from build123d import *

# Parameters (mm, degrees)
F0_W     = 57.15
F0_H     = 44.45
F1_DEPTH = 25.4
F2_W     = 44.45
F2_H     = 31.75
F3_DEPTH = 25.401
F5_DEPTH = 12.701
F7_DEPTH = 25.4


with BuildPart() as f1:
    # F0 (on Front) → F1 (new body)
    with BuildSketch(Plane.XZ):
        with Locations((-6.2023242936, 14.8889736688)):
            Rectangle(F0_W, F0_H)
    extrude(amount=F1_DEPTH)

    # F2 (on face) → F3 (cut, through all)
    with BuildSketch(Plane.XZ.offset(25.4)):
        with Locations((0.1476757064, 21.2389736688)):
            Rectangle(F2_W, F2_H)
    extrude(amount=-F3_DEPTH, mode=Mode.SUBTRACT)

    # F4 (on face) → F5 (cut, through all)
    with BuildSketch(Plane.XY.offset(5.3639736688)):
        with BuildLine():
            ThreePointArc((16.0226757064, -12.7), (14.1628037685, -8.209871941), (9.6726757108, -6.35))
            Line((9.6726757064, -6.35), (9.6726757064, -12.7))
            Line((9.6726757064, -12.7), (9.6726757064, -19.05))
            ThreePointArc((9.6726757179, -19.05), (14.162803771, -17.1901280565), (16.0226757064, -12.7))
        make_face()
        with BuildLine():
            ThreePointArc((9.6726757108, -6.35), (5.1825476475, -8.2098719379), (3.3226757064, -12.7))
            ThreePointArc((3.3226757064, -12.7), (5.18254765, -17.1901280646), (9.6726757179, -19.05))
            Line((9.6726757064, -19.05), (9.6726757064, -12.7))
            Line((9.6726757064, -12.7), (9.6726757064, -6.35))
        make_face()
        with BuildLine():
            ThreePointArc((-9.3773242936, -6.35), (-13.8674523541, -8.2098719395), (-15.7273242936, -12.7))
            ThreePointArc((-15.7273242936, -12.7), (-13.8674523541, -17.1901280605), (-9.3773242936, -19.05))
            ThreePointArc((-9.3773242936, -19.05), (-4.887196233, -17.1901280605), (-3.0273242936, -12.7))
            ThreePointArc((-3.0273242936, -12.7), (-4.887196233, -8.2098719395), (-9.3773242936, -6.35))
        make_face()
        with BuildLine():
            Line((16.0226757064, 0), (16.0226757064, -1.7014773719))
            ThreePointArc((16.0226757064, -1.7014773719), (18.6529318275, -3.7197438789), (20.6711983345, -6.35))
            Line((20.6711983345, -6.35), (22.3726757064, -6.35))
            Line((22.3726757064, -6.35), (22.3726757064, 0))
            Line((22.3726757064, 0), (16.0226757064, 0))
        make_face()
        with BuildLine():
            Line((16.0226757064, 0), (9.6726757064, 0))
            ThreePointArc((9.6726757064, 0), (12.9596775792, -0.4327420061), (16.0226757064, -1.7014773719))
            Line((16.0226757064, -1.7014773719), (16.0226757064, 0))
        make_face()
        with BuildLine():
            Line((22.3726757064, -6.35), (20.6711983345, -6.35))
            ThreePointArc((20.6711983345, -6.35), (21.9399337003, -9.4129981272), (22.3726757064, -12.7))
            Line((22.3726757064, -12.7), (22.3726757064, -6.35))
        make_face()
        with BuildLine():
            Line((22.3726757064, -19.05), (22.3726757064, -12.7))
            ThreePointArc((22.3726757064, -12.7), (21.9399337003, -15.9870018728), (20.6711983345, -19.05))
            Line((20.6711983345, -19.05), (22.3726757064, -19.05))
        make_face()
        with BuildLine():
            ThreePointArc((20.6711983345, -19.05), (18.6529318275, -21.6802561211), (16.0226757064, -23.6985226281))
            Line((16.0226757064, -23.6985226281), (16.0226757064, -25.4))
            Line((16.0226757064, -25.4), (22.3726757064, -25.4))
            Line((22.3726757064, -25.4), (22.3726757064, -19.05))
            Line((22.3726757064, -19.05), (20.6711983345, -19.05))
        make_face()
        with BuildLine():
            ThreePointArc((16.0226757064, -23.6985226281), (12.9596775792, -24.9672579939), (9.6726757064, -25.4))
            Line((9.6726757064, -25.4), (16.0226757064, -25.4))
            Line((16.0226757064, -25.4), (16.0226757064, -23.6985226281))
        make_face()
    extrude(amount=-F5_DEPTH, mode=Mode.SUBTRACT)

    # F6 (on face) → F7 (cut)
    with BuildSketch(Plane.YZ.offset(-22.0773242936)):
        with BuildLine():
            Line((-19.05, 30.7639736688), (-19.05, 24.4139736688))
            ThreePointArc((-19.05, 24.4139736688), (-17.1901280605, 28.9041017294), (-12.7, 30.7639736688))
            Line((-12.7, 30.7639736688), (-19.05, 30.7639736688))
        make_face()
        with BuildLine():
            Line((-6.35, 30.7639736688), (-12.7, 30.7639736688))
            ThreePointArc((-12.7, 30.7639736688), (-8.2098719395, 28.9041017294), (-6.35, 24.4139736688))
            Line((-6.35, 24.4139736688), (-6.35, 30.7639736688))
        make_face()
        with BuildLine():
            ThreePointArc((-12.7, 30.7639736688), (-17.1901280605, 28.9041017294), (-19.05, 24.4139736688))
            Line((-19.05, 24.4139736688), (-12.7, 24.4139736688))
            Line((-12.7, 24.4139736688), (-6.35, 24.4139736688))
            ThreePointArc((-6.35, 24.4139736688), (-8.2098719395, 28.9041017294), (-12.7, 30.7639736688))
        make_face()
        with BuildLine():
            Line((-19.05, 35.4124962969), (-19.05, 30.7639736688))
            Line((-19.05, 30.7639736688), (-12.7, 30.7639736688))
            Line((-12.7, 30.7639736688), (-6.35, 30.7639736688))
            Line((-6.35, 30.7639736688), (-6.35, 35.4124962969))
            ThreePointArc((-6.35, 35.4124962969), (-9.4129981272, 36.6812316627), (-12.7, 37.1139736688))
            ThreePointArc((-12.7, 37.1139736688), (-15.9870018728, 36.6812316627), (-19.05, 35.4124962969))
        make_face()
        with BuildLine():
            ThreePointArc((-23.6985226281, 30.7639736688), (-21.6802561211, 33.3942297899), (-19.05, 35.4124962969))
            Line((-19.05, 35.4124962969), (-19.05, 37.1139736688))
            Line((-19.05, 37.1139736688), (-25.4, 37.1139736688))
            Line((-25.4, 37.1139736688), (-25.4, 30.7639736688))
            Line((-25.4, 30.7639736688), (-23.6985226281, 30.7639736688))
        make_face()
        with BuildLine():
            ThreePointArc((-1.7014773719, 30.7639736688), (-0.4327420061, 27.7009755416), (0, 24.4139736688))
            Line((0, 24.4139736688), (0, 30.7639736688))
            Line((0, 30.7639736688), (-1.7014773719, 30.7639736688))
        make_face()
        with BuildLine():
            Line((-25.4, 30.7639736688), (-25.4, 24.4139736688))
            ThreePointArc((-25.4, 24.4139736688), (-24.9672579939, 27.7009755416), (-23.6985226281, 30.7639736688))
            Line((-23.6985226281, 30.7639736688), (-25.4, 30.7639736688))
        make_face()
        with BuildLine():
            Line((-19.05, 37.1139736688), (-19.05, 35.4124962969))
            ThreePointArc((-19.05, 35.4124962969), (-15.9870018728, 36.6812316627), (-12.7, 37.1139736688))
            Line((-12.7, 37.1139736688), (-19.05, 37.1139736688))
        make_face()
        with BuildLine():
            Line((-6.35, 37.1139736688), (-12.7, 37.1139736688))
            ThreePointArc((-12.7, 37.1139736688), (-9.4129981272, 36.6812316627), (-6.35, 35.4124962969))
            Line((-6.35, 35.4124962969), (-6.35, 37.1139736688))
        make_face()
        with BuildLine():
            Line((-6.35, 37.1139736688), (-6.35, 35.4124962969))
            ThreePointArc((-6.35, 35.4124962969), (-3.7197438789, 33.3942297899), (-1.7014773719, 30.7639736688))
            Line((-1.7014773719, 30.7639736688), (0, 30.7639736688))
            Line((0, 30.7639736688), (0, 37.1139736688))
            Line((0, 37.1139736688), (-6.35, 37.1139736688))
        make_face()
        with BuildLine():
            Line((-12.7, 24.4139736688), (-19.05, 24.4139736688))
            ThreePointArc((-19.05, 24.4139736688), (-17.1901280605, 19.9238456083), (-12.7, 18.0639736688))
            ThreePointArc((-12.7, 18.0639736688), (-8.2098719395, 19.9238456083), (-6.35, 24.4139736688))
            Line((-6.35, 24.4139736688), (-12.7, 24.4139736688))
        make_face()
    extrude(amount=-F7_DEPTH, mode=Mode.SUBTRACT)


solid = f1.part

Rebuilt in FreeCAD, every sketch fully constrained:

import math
import FreeCAD as App
import Part
import Sketcher
from FreeCAD import Vector
Q = App.Units.Quantity

doc = App.newDocument("Part")
body = doc.addObject("PartDesign::Body", "Body")

# Sketch on XZ plane
sketch1 = body.newObject("Sketcher::SketchObject", "Sketch")
sketch1.AttachmentSupport = (doc.getObject("XZ_Plane"), [""])
sketch1.MapMode = "FlatFace"
sketch1.addGeometry([
    Part.LineSegment(Vector(-35, 37, 0), Vector(-35, -7, 0)),
    Part.LineSegment(Vector(-35, -7, 0), Vector(22, -7, 0)),
    Part.LineSegment(Vector(22, -7, 0), Vector(22, 37, 0)),
    Part.LineSegment(Vector(22, 37, 0), Vector(-35, 37, 0)),
], False)
sketch1.addConstraint([
    Sketcher.Constraint("Coincident", 0, 2, 1, 1),
    Sketcher.Constraint("Coincident", 1, 2, 2, 1),
    Sketcher.Constraint("Coincident", 2, 2, 3, 1),
    Sketcher.Constraint("Coincident", 3, 2, 0, 1),
    Sketcher.Constraint("Vertical", 0),
    Sketcher.Constraint("Horizontal", 1),
    Sketcher.Constraint("Vertical", 2),
    Sketcher.Constraint("Horizontal", 3),
    Sketcher.Constraint("DistanceX", 1, 1, 1, 2, Q("2.25 in")),
    Sketcher.Constraint("DistanceY", 0, 2, 0, 1, Q("1.75 in")),
    Sketcher.Constraint("DistanceX", 0, 2, -1, 1, Q("34.777324 mm")),
    Sketcher.Constraint("DistanceY", 0, 2, -1, 1, Q("7.336026 mm")),
])
pad1 = body.newObject("PartDesign::Pad", "Pad")
pad1.Profile = sketch1
pad1.Length = Q("1 in")

# Sketch on XZ plane
sketch2 = body.newObject("Sketcher::SketchObject", "Sketch001")
sketch2.AttachmentSupport = (doc.getObject("XZ_Plane"), [""])
sketch2.MapMode = "FlatFace"
sketch2.AttachmentOffset = App.Placement(Vector(0, 0, 1 * 25.4), App.Rotation())
sketch2.addGeometry([
    Part.LineSegment(Vector(-22, 37, 0), Vector(-22, 5, 0)),
    Part.LineSegment(Vector(-22, 5, 0), Vector(22, 5, 0)),
    Part.LineSegment(Vector(22, 5, 0), Vector(22, 37, 0)),
    Part.LineSegment(Vector(22, 37, 0), Vector(-22, 37, 0)),
], False)
sketch2.addConstraint([
    Sketcher.Constraint("Coincident", 0, 2, 1, 1),
    Sketcher.Constraint("Coincident", 1, 2, 2, 1),
    Sketcher.Constraint("Coincident", 2, 2, 3, 1),
    Sketcher.Constraint("Coincident", 3, 2, 0, 1),
    Sketcher.Constraint("Vertical", 0),
    Sketcher.Constraint("Horizontal", 1),
    Sketcher.Constraint("Vertical", 2),
    Sketcher.Constraint("Horizontal", 3),
    Sketcher.Constraint("DistanceX", 1, 1, 1, 2, Q("1.75 in")),
    Sketcher.Constraint("DistanceY", 0, 2, 0, 1, Q("1.25 in")),
    Sketcher.Constraint("DistanceX", 0, 2, -1, 1, Q("22.077324 mm")),
    Sketcher.Constraint("DistanceY", -1, 1, 0, 2, Q("5.363974 mm")),
])
pocket1 = body.newObject("PartDesign::Pocket", "Pocket")
pocket1.Profile = sketch2
pocket1.Type = "ThroughAll"

# Sketch on XY plane
sketch3 = body.newObject("Sketcher::SketchObject", "Sketch002")
sketch3.AttachmentSupport = (doc.getObject("XY_Plane"), [""])
sketch3.MapMode = "FlatFace"
sketch3.AttachmentOffset = App.Placement(Vector(0, 0, 5.363974), App.Rotation())
sketch3.addGeometry([
    Part.ArcOfCircle(Part.Circle(Vector(10, -13, 0), Vector(0, 0, 1), 6), math.radians(0), math.radians(90)),  # 0
    Part.ArcOfCircle(Part.Circle(Vector(10, -13, 0), Vector(0, 0, 1), 6), math.radians(90), math.radians(180)),  # 1
    Part.ArcOfCircle(Part.Circle(Vector(10, -13, 0), Vector(0, 0, 1), 6), math.radians(180), math.radians(270)),  # 2
    Part.ArcOfCircle(Part.Circle(Vector(10, -13, 0), Vector(0, 0, 1), 6), math.radians(-90), math.radians(0)),  # 3
    Part.ArcOfCircle(Part.Circle(Vector(-9, -13, 0), Vector(0, 0, 1), 6), math.radians(90), math.radians(180)),  # 4
    Part.ArcOfCircle(Part.Circle(Vector(-9, -13, 0), Vector(0, 0, 1), 6), math.radians(180), math.radians(270)),  # 5
    Part.ArcOfCircle(Part.Circle(Vector(-9, -13, 0), Vector(0, 0, 1), 6), math.radians(-90), math.radians(0)),  # 6
    Part.ArcOfCircle(Part.Circle(Vector(-9, -13, 0), Vector(0, 0, 1), 6), math.radians(0), math.radians(90)),  # 7
    Part.ArcOfCircle(Part.Circle(Vector(10, -13, 0), Vector(0, 0, 1), 13), math.radians(30), math.radians(60)),  # 8
    Part.ArcOfCircle(Part.Circle(Vector(10, -13, 0), Vector(0, 0, 1), 13), math.radians(0), math.radians(30)),  # 9
    Part.LineSegment(Vector(22, -13, 0), Vector(22, 0, 0)),  # 10
    Part.LineSegment(Vector(22, 0, 0), Vector(10, 0, 0)),  # 11
    Part.ArcOfCircle(Part.Circle(Vector(10, -13, 0), Vector(0, 0, 1), 13), math.radians(60), math.radians(90)),  # 12
    Part.ArcOfCircle(Part.Circle(Vector(10, -13, 0), Vector(0, 0, 1), 13), math.radians(-30), math.radians(0)),  # 13
    Part.ArcOfCircle(Part.Circle(Vector(10, -13, 0), Vector(0, 0, 1), 13), math.radians(-60), math.radians(-30)),  # 14
    Part.ArcOfCircle(Part.Circle(Vector(10, -13, 0), Vector(0, 0, 1), 13), math.radians(-90), math.radians(-60)),  # 15
    Part.LineSegment(Vector(10, -25, 0), Vector(22, -25, 0)),  # 16
    Part.LineSegment(Vector(22, -25, 0), Vector(22, -13, 0)),  # 17
], False)
sketch3.addConstraint([
    Sketcher.Constraint("Tangent", 0, 2, 1, 1),
    Sketcher.Constraint("Tangent", 1, 2, 2, 1),
    Sketcher.Constraint("Tangent", 2, 2, 3, 1),
    Sketcher.Constraint("Tangent", 3, 2, 0, 1),
    Sketcher.Constraint("Tangent", 4, 2, 5, 1),
    Sketcher.Constraint("Tangent", 5, 2, 6, 1),
    Sketcher.Constraint("Tangent", 6, 2, 7, 1),
    Sketcher.Constraint("Tangent", 7, 2, 4, 1),
    Sketcher.Constraint("Tangent", 8, 1, 9, 2),
    Sketcher.Constraint("Tangent", 9, 1, 10, 1),
    Sketcher.Constraint("Coincident", 10, 2, 11, 1),
    Sketcher.Constraint("Tangent", 11, 2, 12, 2),
    Sketcher.Constraint("Tangent", 12, 1, 8, 2),
    Sketcher.Constraint("Tangent", 13, 1, 14, 2),
    Sketcher.Constraint("Tangent", 14, 1, 15, 2),
    Sketcher.Constraint("Tangent", 15, 1, 16, 1),
    Sketcher.Constraint("Coincident", 16, 2, 17, 1),
    Sketcher.Constraint("Tangent", 17, 2, 13, 2),
    Sketcher.Constraint("Vertical", 10),
    Sketcher.Constraint("Horizontal", 11),
    Sketcher.Constraint("Horizontal", 16),
    Sketcher.Constraint("Vertical", 17),
    Sketcher.Constraint("Coincident", 8, 3, 0, 3),
    Sketcher.Constraint("Coincident", 13, 3, 0, 3),
    Sketcher.Constraint("Coincident", 15, 3, 0, 3),
    Sketcher.Constraint("Coincident", 17, 2, 9, 1),
    Sketcher.Constraint("Equal", 0, 1),
    Sketcher.Constraint("Equal", 3, 4),
    Sketcher.Constraint("Equal", 4, 5),
    Sketcher.Constraint("Equal", 9, 12),
    Sketcher.Constraint("PointOnObject", 10, 2, -1),
    Sketcher.Constraint("Horizontal", 3, 3, 4, 3),
    Sketcher.Constraint("Horizontal", 15, 3, 1, 2),
    Sketcher.Constraint("Horizontal", 1, 2, 3, 2),
    Sketcher.Constraint("Horizontal", 3, 2, 4, 2),
    Sketcher.Constraint("Horizontal", 4, 2, 6, 2),
    Sketcher.Constraint("Horizontal", 7, 2, 8, 1),
    Sketcher.Constraint("Horizontal", 5, 2, 13, 1),
    Sketcher.Constraint("Vertical", 15, 3, 0, 2),
    Sketcher.Constraint("Vertical", 0, 2, 2, 2),
    Sketcher.Constraint("Vertical", 7, 3, 5, 2),
    Sketcher.Constraint("Vertical", 5, 2, 7, 2),
    Sketcher.Constraint("Vertical", 3, 2, 12, 1),
    Sketcher.Constraint("Vertical", 12, 1, 14, 1),
    Sketcher.Constraint("Radius", 8, Q("0.5 in")),
    Sketcher.Constraint("Radius", 0, Q("0.25 in")),
    Sketcher.Constraint("DistanceX", 4, 3, 0, 3, Q("0.75 in")),
    Sketcher.Constraint("DistanceX", -1, 1, 8, 1, Q("20.671198 mm")),
])
pocket2 = body.newObject("PartDesign::Pocket", "Pocket001")
pocket2.Profile = sketch3
pocket2.Type = "ThroughAll"

# Sketch on YZ plane
sketch4 = body.newObject("Sketcher::SketchObject", "Sketch003")
sketch4.AttachmentSupport = (doc.getObject("YZ_Plane"), [""])
sketch4.MapMode = "FlatFace"
sketch4.AttachmentOffset = App.Placement(Vector(0, 0, -22.077324), App.Rotation())
sketch4.addGeometry([
    Part.LineSegment(Vector(-6, 24, 0), Vector(-6, 35, 0)),  # 0
    Part.ArcOfCircle(Part.Circle(Vector(-13, 24, 0), Vector(0, 0, 1), 13), math.radians(30), math.radians(60)),  # 1
    Part.ArcOfCircle(Part.Circle(Vector(-13, 24, 0), Vector(0, 0, 1), 13), math.radians(0), math.radians(30)),  # 2
    Part.LineSegment(Vector(0, 24, 0), Vector(0, 37, 0)),  # 3
    Part.LineSegment(Vector(0, 37, 0), Vector(-25, 37, 0)),  # 4
    Part.LineSegment(Vector(-25, 37, 0), Vector(-25, 24, 0)),  # 5
    Part.ArcOfCircle(Part.Circle(Vector(-13, 24, 0), Vector(0, 0, 1), 13), math.radians(150), math.radians(180)),  # 6
    Part.ArcOfCircle(Part.Circle(Vector(-13, 24, 0), Vector(0, 0, 1), 13), math.radians(120), math.radians(150)),  # 7
    Part.LineSegment(Vector(-19, 35, 0), Vector(-19, 24, 0)),  # 8
    Part.ArcOfCircle(Part.Circle(Vector(-13, 24, 0), Vector(0, 0, 1), 6), math.radians(180), math.radians(270)),  # 9
    Part.ArcOfCircle(Part.Circle(Vector(-13, 24, 0), Vector(0, 0, 1), 6), math.radians(-90), math.radians(0)),  # 10
], False)
sketch4.addConstraint([
    Sketcher.Constraint("Coincident", 0, 2, 1, 2),
    Sketcher.Constraint("Tangent", 1, 1, 2, 2),
    Sketcher.Constraint("Tangent", 2, 1, 3, 1),
    Sketcher.Constraint("Coincident", 3, 2, 4, 1),
    Sketcher.Constraint("Coincident", 4, 2, 5, 1),
    Sketcher.Constraint("Tangent", 5, 2, 6, 2),
    Sketcher.Constraint("Tangent", 6, 1, 7, 2),
    Sketcher.Constraint("Coincident", 7, 1, 8, 1),
    Sketcher.Constraint("Tangent", 8, 2, 9, 1),
    Sketcher.Constraint("Tangent", 9, 2, 10, 1),
    Sketcher.Constraint("Tangent", 10, 2, 0, 1),
    Sketcher.Constraint("Vertical", 0),
    Sketcher.Constraint("Vertical", 3),
    Sketcher.Constraint("Horizontal", 4),
    Sketcher.Constraint("Vertical", 5),
    Sketcher.Constraint("Vertical", 8),
    Sketcher.Constraint("Coincident", 6, 3, 1, 3),
    Sketcher.Constraint("Coincident", 9, 3, 1, 3),
    Sketcher.Constraint("Equal", 1, 2),
    Sketcher.Constraint("Equal", 2, 6),
    Sketcher.Constraint("Equal", 6, 7),
    Sketcher.Constraint("Equal", 9, 10),
    Sketcher.Constraint("PointOnObject", 2, 1, -2),
    Sketcher.Constraint("Horizontal", 1, 1, 6, 1),
    Sketcher.Constraint("Vertical", 10, 3, 9, 2),
    Sketcher.Constraint("Radius", 1, Q("0.5 in")),
    Sketcher.Constraint("Radius", 9, Q("0.25 in")),
    Sketcher.Constraint("DistanceY", 3, 1, 3, 2, Q("0.5 in")),
    Sketcher.Constraint("DistanceY", 1, 3, 1, 1, Q("0.25 in")),
    Sketcher.Constraint("DistanceY", -1, 1, 1, 3, Q("24.413974 mm")),
])
pocket3 = body.newObject("PartDesign::Pocket", "Pocket002")
pocket3.Profile = sketch4
pocket3.Length = Q("1 in")

doc.recompute()
